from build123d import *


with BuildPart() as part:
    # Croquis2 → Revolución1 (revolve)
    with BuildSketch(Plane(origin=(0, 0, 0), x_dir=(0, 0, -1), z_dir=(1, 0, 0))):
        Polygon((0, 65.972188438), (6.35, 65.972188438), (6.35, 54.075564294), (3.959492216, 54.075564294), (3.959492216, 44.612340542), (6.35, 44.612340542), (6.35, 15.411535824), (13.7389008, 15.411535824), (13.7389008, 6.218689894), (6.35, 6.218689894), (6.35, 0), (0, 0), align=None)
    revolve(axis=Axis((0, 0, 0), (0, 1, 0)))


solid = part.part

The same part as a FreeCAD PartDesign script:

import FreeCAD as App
import Part
import Sketcher
Q = App.Units.Quantity


def add_polygon(sketch, points):
    """Adds a closed chain of lines whose ends are joined by coincident constraints."""
    first, n = sketch.GeometryCount, len(points)
    for a, b in zip(points, points[1:] + points[:1]):
        sketch.addGeometry(Part.LineSegment(App.Vector(*a, 0), App.Vector(*b, 0)), False)
    for i in range(n):
        sketch.addConstraint(Sketcher.Constraint("Coincident", first + i, 2, first + (i + 1) % n, 1))

doc = App.newDocument("Part")
body = doc.addObject("PartDesign::Body", "Body")

# Sketch on YZ plane
sketch1 = body.newObject("Sketcher::SketchObject", "Sketch")
sketch1.AttachmentSupport = (doc.getObject("YZ_Plane"), [""])
sketch1.MapMode = "FlatFace"
add_polygon(sketch1, [(66, -6.3), (66, 0), (0, 0), (0, -6.3), (6.2, -6.3), (6.2, -13.7), (15.4, -13.7), (15.4, -6.3), (44.6, -6.3), (44.6, -4), (54.1, -4), (54.1, -6.3)])  # lines 0-11
sketch1.addConstraint([
    Sketcher.Constraint("Vertical", 0),
    Sketcher.Constraint("Horizontal", 1),
    Sketcher.Constraint("Vertical", 2),
    Sketcher.Constraint("Horizontal", 3),
    Sketcher.Constraint("Vertical", 4),
    Sketcher.Constraint("Horizontal", 5),
    Sketcher.Constraint("Vertical", 6),
    Sketcher.Constraint("Horizontal", 7),
    Sketcher.Constraint("Vertical", 8),
    Sketcher.Constraint("Horizontal", 9),
    Sketcher.Constraint("Vertical", 10),
    Sketcher.Constraint("Horizontal", 11),
    Sketcher.Constraint("Coincident", 1, 2, -1, 1),
    Sketcher.Constraint("Horizontal", 3, 2, 6, 2),
    Sketcher.Constraint("Horizontal", 7, 2, 10, 2),
    Sketcher.Constraint("DistanceY", 0, 1, 0, 2, Q("0.25 in")),
    Sketcher.Constraint("DistanceY", 4, 2, 4, 1, 7.388901),
    Sketcher.Constraint("DistanceX", 3, 2, 0, 2, Q("2.3524999 in")),
    Sketcher.Constraint("DistanceX", 1, 2, 1, 1, 65.972188),
    Sketcher.Constraint("DistanceX", 5, 1, 5, 2, 9.192846),
    Sketcher.Constraint("DistanceX", 7, 1, 7, 2, 29.200805),
    Sketcher.Constraint("DistanceX", 9, 1, 9, 2, 9.463224),
    Sketcher.Constraint("DistanceY", 8, 1, 8, 2, 2.390508),
])
revolution = body.newObject("PartDesign::Revolution", "Revolution")
revolution.Profile = sketch1
revolution.ReferenceAxis = (sketch1, ["H_Axis"])
revolution.Angle = 360

doc.recompute()
